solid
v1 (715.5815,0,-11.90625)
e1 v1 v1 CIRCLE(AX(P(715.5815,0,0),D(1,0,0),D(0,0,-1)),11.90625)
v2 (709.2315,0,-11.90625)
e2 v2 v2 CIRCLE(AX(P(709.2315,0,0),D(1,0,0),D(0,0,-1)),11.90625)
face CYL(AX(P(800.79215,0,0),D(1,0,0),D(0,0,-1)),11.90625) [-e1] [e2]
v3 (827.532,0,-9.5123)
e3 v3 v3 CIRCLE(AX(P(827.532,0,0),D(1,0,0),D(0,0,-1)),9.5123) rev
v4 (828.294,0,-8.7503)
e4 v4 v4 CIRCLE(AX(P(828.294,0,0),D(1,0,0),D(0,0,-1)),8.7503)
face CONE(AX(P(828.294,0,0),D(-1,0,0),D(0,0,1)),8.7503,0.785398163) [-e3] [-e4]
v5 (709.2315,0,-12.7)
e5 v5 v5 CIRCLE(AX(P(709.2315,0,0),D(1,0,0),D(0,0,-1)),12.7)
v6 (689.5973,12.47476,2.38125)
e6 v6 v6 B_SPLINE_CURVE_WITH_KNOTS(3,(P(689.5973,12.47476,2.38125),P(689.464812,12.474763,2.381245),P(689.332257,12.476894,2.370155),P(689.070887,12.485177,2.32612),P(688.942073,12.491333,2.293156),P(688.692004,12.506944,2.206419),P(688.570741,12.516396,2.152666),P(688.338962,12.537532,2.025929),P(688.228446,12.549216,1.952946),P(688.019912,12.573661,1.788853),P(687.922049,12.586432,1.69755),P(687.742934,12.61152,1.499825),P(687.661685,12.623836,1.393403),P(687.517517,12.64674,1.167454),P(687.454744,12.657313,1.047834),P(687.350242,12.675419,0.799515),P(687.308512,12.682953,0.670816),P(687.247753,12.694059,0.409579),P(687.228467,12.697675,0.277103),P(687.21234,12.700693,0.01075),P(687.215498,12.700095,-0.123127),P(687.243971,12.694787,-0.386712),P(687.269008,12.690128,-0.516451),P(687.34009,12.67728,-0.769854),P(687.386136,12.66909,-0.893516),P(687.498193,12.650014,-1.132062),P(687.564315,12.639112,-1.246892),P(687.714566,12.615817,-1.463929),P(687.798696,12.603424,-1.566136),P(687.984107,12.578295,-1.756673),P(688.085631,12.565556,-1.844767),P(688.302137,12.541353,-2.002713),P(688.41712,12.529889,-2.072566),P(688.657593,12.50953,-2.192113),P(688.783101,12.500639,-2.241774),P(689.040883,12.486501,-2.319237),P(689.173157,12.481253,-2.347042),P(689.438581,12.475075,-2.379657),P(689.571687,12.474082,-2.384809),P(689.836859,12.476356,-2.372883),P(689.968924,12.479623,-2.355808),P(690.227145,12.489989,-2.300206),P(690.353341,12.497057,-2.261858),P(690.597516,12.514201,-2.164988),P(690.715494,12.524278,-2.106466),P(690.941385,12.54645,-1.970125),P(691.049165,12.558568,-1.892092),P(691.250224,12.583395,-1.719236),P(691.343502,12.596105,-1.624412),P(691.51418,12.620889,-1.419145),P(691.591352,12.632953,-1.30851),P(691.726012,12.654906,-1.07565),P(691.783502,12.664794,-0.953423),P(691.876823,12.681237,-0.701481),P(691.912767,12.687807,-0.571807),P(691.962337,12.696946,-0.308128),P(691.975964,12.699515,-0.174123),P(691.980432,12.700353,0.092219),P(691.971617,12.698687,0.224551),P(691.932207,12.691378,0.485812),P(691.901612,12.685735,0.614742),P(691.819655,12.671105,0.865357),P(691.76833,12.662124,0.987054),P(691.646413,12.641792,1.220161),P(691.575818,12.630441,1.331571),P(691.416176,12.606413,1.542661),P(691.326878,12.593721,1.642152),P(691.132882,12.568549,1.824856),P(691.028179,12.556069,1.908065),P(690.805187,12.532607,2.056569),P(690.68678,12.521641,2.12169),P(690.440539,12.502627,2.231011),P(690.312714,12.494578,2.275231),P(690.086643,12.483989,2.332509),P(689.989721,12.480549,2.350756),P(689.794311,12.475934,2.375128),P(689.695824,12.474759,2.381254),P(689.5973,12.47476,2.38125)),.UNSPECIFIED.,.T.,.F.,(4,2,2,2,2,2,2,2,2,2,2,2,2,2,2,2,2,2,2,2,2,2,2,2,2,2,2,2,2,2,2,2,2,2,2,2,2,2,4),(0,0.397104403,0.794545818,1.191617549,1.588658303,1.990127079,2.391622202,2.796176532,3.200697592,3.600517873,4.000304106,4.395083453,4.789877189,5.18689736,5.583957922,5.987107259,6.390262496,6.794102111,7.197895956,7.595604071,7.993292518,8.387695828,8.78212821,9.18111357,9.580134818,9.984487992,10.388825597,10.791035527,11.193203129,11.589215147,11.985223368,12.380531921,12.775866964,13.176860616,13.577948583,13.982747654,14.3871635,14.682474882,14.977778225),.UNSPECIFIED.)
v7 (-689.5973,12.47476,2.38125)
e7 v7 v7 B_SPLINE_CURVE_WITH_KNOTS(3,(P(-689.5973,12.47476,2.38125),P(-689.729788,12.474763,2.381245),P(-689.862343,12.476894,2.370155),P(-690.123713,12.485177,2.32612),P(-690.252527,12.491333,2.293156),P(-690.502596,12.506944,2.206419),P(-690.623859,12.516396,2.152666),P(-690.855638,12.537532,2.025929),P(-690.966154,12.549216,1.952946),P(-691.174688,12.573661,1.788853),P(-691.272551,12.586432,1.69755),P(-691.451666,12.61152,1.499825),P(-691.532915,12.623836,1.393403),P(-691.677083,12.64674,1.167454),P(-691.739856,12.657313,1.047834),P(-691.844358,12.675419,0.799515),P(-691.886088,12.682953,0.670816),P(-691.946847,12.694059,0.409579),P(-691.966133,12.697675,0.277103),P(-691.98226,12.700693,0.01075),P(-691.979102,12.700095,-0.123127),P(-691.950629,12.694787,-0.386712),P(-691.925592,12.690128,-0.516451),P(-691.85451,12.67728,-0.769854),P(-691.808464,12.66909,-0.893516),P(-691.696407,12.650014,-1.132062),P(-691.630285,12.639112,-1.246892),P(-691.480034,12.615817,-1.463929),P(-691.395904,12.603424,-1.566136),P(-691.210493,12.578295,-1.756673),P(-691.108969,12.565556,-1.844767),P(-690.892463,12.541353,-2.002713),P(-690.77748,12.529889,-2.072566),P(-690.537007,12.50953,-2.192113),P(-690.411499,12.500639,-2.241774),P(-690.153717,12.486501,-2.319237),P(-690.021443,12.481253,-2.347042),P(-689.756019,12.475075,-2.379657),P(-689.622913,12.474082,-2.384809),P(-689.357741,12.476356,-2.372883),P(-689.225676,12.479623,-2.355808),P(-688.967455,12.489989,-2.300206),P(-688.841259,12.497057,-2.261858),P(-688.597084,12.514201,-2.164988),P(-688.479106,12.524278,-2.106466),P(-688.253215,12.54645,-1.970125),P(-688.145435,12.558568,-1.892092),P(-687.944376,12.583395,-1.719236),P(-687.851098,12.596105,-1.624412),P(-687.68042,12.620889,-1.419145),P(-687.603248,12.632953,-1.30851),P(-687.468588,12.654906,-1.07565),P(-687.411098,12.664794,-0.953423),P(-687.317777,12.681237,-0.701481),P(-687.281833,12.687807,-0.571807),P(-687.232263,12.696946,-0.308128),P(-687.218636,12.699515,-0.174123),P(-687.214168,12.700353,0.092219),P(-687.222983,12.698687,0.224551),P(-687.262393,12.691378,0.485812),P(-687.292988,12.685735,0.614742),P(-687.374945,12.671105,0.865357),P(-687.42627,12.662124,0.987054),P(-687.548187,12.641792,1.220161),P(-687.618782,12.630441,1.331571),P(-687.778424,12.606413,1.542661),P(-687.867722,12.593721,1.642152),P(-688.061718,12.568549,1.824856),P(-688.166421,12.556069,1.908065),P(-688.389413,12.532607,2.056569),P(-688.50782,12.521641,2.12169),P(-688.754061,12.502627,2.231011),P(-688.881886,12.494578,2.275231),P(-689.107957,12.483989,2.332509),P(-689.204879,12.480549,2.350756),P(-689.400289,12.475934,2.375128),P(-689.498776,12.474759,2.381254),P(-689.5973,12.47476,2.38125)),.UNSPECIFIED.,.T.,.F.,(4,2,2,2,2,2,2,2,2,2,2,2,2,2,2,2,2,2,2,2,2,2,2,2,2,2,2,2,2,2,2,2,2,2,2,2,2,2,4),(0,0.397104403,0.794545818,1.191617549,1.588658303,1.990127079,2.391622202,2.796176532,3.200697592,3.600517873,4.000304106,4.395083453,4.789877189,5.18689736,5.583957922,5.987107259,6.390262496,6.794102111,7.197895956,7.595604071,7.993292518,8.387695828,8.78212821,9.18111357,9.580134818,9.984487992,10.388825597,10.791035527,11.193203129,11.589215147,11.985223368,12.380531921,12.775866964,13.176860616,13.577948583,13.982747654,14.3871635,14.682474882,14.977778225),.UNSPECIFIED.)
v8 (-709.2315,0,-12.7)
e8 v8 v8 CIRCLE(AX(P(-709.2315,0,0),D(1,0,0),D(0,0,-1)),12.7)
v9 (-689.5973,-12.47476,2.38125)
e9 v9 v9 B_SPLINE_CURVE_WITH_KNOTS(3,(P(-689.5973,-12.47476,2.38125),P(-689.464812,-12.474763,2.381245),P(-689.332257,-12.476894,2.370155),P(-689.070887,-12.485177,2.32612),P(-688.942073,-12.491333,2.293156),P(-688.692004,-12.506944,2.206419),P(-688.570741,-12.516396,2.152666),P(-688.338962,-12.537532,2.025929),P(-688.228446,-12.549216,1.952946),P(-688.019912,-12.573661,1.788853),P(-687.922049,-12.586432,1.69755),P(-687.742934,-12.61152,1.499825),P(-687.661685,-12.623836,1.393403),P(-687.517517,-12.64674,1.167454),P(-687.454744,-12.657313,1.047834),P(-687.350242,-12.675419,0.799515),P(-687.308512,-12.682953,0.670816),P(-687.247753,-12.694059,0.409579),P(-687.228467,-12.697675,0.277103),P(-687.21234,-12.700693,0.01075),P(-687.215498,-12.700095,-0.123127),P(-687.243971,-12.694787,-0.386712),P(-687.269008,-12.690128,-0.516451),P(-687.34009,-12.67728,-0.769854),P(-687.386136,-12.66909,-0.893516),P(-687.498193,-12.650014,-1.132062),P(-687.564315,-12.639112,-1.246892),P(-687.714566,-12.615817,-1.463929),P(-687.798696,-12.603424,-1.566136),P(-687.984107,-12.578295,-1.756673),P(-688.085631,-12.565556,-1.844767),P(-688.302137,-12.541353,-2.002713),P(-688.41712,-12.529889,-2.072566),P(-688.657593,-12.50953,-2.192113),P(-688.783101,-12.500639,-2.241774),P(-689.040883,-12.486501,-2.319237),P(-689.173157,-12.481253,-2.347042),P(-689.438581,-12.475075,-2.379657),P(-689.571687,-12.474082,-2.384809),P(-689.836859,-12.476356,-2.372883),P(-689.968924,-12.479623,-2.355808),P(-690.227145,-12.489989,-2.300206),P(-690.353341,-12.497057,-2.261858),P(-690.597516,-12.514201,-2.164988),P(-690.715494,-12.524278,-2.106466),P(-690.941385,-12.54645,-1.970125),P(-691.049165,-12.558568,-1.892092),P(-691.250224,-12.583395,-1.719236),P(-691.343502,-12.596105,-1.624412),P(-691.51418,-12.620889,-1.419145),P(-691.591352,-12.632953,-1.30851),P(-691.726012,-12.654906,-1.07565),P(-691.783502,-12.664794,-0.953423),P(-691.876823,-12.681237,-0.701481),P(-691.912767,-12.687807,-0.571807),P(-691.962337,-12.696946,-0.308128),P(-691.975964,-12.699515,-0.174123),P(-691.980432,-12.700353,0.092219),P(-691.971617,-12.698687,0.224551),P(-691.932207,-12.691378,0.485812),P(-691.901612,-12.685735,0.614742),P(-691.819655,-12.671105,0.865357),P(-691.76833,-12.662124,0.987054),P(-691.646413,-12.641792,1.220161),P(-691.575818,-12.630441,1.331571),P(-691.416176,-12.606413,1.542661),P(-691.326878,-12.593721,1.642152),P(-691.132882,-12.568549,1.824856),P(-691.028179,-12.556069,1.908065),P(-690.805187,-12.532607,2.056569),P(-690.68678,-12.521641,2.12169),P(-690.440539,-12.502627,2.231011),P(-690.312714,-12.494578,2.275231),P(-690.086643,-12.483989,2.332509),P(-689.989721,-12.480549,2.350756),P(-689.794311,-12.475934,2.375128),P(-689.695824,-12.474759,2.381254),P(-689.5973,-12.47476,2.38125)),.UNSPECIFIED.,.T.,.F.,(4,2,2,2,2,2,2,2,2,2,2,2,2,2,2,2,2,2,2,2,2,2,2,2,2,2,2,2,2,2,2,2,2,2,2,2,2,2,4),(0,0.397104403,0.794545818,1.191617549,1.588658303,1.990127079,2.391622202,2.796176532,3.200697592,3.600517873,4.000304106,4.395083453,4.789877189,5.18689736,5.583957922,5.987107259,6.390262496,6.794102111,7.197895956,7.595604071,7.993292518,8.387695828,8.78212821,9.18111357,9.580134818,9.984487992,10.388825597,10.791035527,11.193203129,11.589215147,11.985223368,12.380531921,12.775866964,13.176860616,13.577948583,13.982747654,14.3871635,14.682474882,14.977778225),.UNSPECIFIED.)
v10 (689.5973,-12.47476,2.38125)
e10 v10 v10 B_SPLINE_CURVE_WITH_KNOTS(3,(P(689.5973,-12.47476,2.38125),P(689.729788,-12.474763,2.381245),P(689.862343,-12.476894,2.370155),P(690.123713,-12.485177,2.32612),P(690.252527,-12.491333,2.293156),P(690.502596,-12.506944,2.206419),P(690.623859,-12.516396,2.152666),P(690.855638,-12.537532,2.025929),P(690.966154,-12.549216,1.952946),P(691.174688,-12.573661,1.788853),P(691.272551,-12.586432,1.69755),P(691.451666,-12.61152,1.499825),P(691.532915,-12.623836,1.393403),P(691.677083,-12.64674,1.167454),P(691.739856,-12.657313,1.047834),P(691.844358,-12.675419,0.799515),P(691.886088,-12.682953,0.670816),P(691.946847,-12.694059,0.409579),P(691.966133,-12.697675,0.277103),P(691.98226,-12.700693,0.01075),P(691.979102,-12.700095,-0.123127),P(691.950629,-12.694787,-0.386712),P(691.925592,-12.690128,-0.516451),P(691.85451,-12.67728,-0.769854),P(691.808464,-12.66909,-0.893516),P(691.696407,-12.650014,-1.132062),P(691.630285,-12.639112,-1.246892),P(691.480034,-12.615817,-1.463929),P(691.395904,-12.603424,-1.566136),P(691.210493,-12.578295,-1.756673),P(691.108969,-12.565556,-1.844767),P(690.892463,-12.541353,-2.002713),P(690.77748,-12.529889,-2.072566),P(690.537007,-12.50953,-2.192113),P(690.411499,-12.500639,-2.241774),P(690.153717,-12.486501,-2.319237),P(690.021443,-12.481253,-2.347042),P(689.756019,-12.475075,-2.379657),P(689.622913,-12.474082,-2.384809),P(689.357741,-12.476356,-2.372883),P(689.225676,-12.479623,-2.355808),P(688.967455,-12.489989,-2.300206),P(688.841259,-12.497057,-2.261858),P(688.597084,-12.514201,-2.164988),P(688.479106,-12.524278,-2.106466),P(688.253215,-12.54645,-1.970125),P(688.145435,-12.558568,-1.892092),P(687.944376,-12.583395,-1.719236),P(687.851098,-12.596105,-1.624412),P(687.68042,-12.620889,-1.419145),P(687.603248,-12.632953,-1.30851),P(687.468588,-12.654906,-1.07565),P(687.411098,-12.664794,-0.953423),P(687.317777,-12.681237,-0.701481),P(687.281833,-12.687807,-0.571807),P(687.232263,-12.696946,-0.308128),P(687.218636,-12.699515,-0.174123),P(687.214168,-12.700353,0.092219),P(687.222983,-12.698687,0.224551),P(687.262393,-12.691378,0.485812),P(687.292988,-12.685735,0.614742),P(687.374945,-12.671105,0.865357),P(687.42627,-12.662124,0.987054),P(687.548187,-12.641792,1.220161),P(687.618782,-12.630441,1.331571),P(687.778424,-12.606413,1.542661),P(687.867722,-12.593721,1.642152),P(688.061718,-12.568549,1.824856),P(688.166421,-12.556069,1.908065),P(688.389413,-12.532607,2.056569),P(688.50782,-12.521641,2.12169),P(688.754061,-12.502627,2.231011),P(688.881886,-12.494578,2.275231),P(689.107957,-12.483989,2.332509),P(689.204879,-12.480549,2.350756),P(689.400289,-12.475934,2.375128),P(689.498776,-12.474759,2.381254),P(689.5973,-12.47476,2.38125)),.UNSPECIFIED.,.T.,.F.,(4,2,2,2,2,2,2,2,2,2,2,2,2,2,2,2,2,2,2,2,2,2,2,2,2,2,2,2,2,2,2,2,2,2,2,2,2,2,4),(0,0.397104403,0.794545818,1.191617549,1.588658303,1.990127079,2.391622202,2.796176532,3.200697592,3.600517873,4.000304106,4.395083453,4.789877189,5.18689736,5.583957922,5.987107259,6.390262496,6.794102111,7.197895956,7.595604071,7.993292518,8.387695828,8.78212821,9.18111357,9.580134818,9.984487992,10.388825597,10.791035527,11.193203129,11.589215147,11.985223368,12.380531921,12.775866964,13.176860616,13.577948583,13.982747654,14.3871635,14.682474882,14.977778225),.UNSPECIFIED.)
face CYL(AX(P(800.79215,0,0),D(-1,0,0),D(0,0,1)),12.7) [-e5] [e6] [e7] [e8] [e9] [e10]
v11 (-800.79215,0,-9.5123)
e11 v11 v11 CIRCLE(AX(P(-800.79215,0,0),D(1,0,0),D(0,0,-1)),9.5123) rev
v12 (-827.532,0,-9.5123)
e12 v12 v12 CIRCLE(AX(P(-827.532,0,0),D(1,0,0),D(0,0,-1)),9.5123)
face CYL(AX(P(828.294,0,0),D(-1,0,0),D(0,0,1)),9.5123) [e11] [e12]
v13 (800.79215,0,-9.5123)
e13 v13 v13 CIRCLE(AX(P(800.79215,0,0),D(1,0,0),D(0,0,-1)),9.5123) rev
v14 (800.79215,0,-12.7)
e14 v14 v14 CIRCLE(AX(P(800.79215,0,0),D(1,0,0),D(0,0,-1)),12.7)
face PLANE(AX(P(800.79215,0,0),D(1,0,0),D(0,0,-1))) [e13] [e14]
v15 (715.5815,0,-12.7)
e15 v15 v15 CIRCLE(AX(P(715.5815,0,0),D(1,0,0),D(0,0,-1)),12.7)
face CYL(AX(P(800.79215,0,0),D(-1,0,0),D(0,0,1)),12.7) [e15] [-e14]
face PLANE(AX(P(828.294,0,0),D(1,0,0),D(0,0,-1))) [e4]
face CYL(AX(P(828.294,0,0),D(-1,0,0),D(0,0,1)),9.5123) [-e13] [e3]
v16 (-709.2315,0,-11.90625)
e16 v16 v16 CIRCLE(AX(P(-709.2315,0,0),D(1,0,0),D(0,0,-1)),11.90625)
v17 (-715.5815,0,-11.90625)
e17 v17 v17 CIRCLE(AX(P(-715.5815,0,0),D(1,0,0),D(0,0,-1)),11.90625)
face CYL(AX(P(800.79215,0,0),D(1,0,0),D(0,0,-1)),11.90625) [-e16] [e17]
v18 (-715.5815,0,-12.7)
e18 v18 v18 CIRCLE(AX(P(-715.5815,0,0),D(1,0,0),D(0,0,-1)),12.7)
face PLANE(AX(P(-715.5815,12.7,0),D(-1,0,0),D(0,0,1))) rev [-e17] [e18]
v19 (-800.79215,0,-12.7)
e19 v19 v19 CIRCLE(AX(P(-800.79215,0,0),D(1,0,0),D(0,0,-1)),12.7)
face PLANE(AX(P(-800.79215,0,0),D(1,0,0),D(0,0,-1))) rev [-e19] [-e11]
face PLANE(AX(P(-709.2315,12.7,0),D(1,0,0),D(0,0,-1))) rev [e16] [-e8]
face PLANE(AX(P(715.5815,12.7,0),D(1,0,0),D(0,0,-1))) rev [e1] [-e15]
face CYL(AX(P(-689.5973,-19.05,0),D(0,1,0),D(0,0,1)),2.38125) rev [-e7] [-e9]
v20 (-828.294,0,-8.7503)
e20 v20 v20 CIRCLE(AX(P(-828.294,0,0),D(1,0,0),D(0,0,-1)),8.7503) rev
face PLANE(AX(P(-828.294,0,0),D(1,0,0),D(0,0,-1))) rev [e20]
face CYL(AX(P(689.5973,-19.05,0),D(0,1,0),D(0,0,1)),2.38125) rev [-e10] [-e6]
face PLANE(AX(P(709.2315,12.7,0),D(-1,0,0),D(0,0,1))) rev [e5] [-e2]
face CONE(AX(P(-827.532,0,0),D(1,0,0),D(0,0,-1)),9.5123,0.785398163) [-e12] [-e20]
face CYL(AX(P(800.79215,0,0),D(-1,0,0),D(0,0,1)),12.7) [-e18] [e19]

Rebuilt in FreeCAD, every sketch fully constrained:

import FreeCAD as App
import Part
import Sketcher

V = App.Vector
Q = App.Units.Quantity


def edges_at(feature, points):
    """Names of the edges that pass closest to the given points."""
    edges = feature.Shape.Edges
    near = lambda p: min(range(len(edges)), key=lambda i: edges[i].distToShape(Part.Vertex(*p))[0])
    return sorted({f"Edge{near(p) + 1}" for p in points})


def add_polygon(sketch, points):
    """Adds a closed chain of lines whose ends are joined by coincident constraints."""
    first, n = sketch.GeometryCount, len(points)
    for a, b in zip(points, points[1:] + points[:1]):
        sketch.addGeometry(Part.LineSegment(App.Vector(*a, 0), App.Vector(*b, 0)), False)
    for i in range(n):
        sketch.addConstraint(Sketcher.Constraint("Coincident", first + i, 2, first + (i + 1) % n, 1))

doc = App.newDocument("Part")
params = doc.addObject("Spreadsheet::Sheet", "Params")
for row, (alias, value) in enumerate([
    ("sketch1_diameter", "1 in"),
    ("pad1_length", "63.0545 in"),
    ("sketch2_diameter", "0.749 in"),
    ("pad2_length", "65.22 in"),
    ("sketch3_width", "0.25 in"),
    ("sketch3_height", "0.03125 in"),
    ("groove_angle", "360 deg"),
    ("sketch4_diameter", "0.1875 in"),
    ("pocket1_length", "1.5 in"),
    ("chamfer_size", "0.03 in"),
], start=1):
    params.set(f"A{row}", alias)
    params.set(f"B{row}", "=" + value)
    params.setAlias(f"B{row}", alias)

body = doc.addObject("PartDesign::Body", "Body")

# Sketch on YZ plane
sketch1 = body.newObject("Sketcher::SketchObject", "Sketch")
sketch1.AttachmentSupport = (doc.getObject("YZ_Plane"), [""])
sketch1.MapMode = "FlatFace"
sketch1.addGeometry(Part.Circle(V(0, 0, 0), V(0, 0, 1), 13), False)
sketch1.addConstraint([
    Sketcher.Constraint("Coincident", 0, 3, -1, 1),
    Sketcher.Constraint("Diameter", 0, Q("1 in")),
])
sketch1.setExpression("Constraints[1]", "Params.sketch1_diameter")
pad1 = body.newObject("PartDesign::Pad", "Pad")
pad1.Profile = sketch1
pad1.setExpression("Length", "Params.pad1_length")
pad1.Midplane = True

# Sketch on YZ plane
sketch2 = body.newObject("Sketcher::SketchObject", "Sketch001")
sketch2.AttachmentSupport = (doc.getObject("YZ_Plane"), [""])
sketch2.MapMode = "FlatFace"
sketch2.addGeometry(Part.Circle(V(0, 0, 0), V(0, 0, 1), 10), False)
sketch2.addConstraint([
    Sketcher.Constraint("Coincident", 0, 3, -1, 1),
    Sketcher.Constraint("Diameter", 0, Q("0.749 in")),
])
sketch2.setExpression("Constraints[1]", "Params.sketch2_diameter")
pad2 = body.newObject("PartDesign::Pad", "Pad001")
pad2.Profile = sketch2
pad2.setExpression("Length", "Params.pad2_length")
pad2.Midplane = True

# Sketch on XY plane
sketch3 = body.newObject("Sketcher::SketchObject", "Sketch002")
sketch3.AttachmentSupport = (doc.getObject("XY_Plane"), [""])
sketch3.MapMode = "FlatFace"
add_polygon(sketch3, [(-715.6, 12.7), (-715.6, 11.9), (-709.2, 11.9), (-709.2, 12.7)])  # lines 0-3
add_polygon(sketch3, [(709.2, 12.7), (709.2, 11.9), (715.6, 11.9), (715.6, 12.7)])  # lines 4-7
sketch3.addConstraint([
    Sketcher.Constraint("Vertical", 0),
    Sketcher.Constraint("Horizontal", 1),
    Sketcher.Constraint("Vertical", 2),
    Sketcher.Constraint("Horizontal", 3),
    Sketcher.Constraint("Vertical", 4),
    Sketcher.Constraint("Horizontal", 5),
    Sketcher.Constraint("Vertical", 6),
    Sketcher.Constraint("Horizontal", 7),
    Sketcher.Constraint("Symmetric", 1, 2, 4, 2, -2),
    Sketcher.Constraint("Symmetric", 3, 2, 6, 2, -2),
    Sketcher.Constraint("DistanceX", 1, 1, 1, 2, Q("0.25 in")),
    Sketcher.Constraint("DistanceY", -1, 1, 2, 2, Q("0.5 in")),
    Sketcher.Constraint("DistanceY", 0, 2, 0, 1, Q("0.03125 in")),
    Sketcher.Constraint("DistanceX", 1, 2, 4, 2, Q("55.845 in")),
])
sketch3.setExpression("Constraints[18]", "Params.sketch3_width")
sketch3.setExpression("Constraints[20]", "Params.sketch3_height")
groove = body.newObject("PartDesign::Groove", "Groove")
groove.Profile = sketch3
groove.ReferenceAxis = (sketch3, ["H_Axis"])
groove.setExpression("Angle", "Params.groove_angle")

# Sketch on XZ plane
sketch4 = body.newObject("Sketcher::SketchObject", "Sketch003")
sketch4.AttachmentSupport = (doc.getObject("XZ_Plane"), [""])
sketch4.MapMode = "FlatFace"
sketch4.addGeometry([
    Part.Circle(V(-689.6, 0, 0), V(0, 0, 1), 2.4),
    Part.Circle(V(689.6, 0, 0), V(0, 0, 1), 2.4),
], False)
sketch4.addConstraint([
    Sketcher.Constraint("Equal", 0, 1),
    Sketcher.Constraint("Symmetric", 0, 3, 1, 3, -1, 1),
    Sketcher.Constraint("PointOnObject", 0, 3, -1),
    Sketcher.Constraint("Diameter", 0, Q("0.1875 in")),
    Sketcher.Constraint("DistanceX", 0, 3, 1, 3, Q("54.299 in")),
])
sketch4.setExpression("Constraints[3]", "Params.sketch4_diameter")
pocket1 = body.newObject("PartDesign::Pocket", "Pocket")
pocket1.Profile = sketch4
pocket1.setExpression("Length", "Params.pocket1_length")
pocket1.Midplane = True
doc.recompute()

chamfer = body.newObject("PartDesign::Chamfer", "Chamfer")
chamfer.Base = (pocket1, edges_at(pocket1, [(-828.294, 0, 9.512), (828.294, 0, 9.512)]))
chamfer.setExpression("Size", "Params.chamfer_size")

doc.recompute()
